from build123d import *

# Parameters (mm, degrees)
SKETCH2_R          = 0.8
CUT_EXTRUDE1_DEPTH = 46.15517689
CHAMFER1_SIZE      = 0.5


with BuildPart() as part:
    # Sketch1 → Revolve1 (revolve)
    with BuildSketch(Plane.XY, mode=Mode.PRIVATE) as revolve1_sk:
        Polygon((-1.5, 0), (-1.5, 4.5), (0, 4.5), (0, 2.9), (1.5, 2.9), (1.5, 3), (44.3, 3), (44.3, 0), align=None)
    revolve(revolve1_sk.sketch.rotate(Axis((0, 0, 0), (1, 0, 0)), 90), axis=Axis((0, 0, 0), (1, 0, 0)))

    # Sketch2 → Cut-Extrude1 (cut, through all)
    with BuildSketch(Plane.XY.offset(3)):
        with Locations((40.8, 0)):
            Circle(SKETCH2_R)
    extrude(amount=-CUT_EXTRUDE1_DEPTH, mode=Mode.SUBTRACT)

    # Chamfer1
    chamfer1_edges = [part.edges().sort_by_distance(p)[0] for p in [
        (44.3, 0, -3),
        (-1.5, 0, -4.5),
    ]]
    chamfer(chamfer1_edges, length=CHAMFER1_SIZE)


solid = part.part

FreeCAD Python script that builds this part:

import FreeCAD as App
import Part
import Sketcher
from FreeCAD import Vector


def edges_at(feature, points):
    """Names of the edges that pass closest to the given points."""
    edges = feature.Shape.Edges
    near = lambda p: min(range(len(edges)), key=lambda i: edges[i].distToShape(Part.Vertex(*p))[0])
    return sorted({f"Edge{near(p) + 1}" for p in points})


def add_polygon(sketch, points):
    """Adds a closed chain of lines whose ends are joined by coincident constraints."""
    first, n = sketch.GeometryCount, len(points)
    for a, b in zip(points, points[1:] + points[:1]):
        sketch.addGeometry(Part.LineSegment(App.Vector(*a, 0), App.Vector(*b, 0)), False)
    for i in range(n):
        sketch.addConstraint(Sketcher.Constraint("Coincident", first + i, 2, first + (i + 1) % n, 1))

doc = App.newDocument("Part")
params = doc.addObject("Spreadsheet::Sheet", "Params")
for row, (alias, value) in enumerate([
    ("sketch1_height", "3 mm"),
    ("sketch1_width", "45.8 mm"),
    ("sketch1_width2", "42.8 mm"),
    ("sketch1_height2", "4.5 mm"),
    ("sketch1_height3", "0.1 mm"),
    ("revolution_angle", "360 deg"),
    ("sketch2_diameter", "1.6 mm"),
    ("chamfer_size", "0.5 mm"),
], start=1):
    params.set(f"A{row}", alias)
    params.set(f"B{row}", "=" + value)
    params.setAlias(f"B{row}", alias)

body = doc.addObject("PartDesign::Body", "Body")

# Sketch on XY plane
sketch1 = body.newObject("Sketcher::SketchObject", "Sketch")
sketch1.AttachmentSupport = (doc.getObject("XY_Plane"), [""])
sketch1.MapMode = "FlatFace"
add_polygon(sketch1, [(-1.5, 4.5), (-1.5, 0), (44.3, 0), (44.3, 3), (1.5, 3), (1.5, 2.9), (0, 2.9), (0, 4.5)])  # lines 0-7
sketch1.addConstraint([
    Sketcher.Constraint("Vertical", 0),
    Sketcher.Constraint("Horizontal", 1),
    Sketcher.Constraint("Vertical", 2),
    Sketcher.Constraint("Horizontal", 3),
    Sketcher.Constraint("Vertical", 4),
    Sketcher.Constraint("Horizontal", 5),
    Sketcher.Constraint("Vertical", 6),
    Sketcher.Constraint("Horizontal", 7),
    Sketcher.Constraint("PointOnObject", 0, 2, -1),
    Sketcher.Constraint("PointOnObject", 5, 2, -2),
    Sketcher.Constraint("Equal", 5, 7),
    Sketcher.Constraint("DistanceY", 2, 1, 2, 2, 3.0),
    Sketcher.Constraint("DistanceX", 1, 1, 1, 2, 45.8),
    Sketcher.Constraint("DistanceX", 3, 2, 3, 1, 42.8),
    Sketcher.Constraint("DistanceY", 0, 2, 0, 1, 4.5),
    Sketcher.Constraint("DistanceY", 4, 2, 4, 1, 0.1),
])
sketch1.setExpression("Constraints[19]", "Params.sketch1_height")
sketch1.setExpression("Constraints[20]", "Params.sketch1_width")
sketch1.setExpression("Constraints[21]", "Params.sketch1_width2")
sketch1.setExpression("Constraints[22]", "Params.sketch1_height2")
sketch1.setExpression("Constraints[23]", "Params.sketch1_height3")
revolution = body.newObject("PartDesign::Revolution", "Revolution")
revolution.Profile = sketch1
revolution.ReferenceAxis = (sketch1, ["H_Axis"])
revolution.setExpression("Angle", "Params.revolution_angle")

# Sketch on XY plane
sketch2 = body.newObject("Sketcher::SketchObject", "Sketch001")
sketch2.AttachmentSupport = (doc.getObject("XY_Plane"), [""])
sketch2.MapMode = "FlatFace"
sketch2.AttachmentOffset = App.Placement(Vector(0, 0, 3), App.Rotation())
sketch2.addGeometry(Part.Circle(Vector(40.8, 0, 0), Vector(0, 0, 1), 0.8), False)
sketch2.addConstraint([
    Sketcher.Constraint("PointOnObject", 0, 3, -1),
    Sketcher.Constraint("Diameter", 0, 1.6),
    Sketcher.Constraint("DistanceX", -1, 1, 0, 3, 40.8),
])
sketch2.setExpression("Constraints[1]", "Params.sketch2_diameter")
pocket1 = body.newObject("PartDesign::Pocket", "Pocket")
pocket1.Profile = sketch2
pocket1.Type = "ThroughAll"
doc.recompute()

chamfer = body.newObject("PartDesign::Chamfer", "Chamfer")
chamfer.Base = (pocket1, edges_at(pocket1, [(44.3, 0, -3), (-1.5, 0, -4.5)]))
chamfer.setExpression("Size", "Params.chamfer_size")

doc.recompute()
